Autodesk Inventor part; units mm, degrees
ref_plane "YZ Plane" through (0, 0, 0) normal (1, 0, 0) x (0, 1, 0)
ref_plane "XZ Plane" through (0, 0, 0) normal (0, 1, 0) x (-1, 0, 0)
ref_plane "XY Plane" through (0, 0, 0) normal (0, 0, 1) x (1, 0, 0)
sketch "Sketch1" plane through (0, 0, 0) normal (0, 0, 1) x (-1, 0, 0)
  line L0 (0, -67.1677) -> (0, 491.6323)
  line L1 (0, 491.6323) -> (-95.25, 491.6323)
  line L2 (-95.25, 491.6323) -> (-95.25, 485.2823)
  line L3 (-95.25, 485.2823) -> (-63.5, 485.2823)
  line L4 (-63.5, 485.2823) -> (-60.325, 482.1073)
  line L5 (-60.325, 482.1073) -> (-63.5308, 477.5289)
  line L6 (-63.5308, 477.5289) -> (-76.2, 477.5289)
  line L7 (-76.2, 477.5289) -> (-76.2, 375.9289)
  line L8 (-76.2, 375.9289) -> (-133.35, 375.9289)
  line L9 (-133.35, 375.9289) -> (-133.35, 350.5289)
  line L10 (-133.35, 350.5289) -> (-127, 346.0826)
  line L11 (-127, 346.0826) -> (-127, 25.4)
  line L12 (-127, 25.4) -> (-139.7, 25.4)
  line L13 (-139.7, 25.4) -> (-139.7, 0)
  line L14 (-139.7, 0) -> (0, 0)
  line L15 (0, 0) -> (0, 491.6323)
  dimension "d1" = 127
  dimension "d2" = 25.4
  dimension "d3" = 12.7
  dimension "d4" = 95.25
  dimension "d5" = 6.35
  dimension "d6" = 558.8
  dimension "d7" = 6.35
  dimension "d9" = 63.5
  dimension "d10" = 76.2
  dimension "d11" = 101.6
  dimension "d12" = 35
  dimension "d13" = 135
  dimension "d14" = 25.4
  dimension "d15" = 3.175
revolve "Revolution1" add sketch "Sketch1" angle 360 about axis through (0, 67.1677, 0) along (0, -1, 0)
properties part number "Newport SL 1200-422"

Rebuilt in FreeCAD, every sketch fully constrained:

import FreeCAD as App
import Part
import Sketcher
Q = App.Units.Quantity


def add_polygon(sketch, points):
    """Adds a closed chain of lines whose ends are joined by coincident constraints."""
    first, n = sketch.GeometryCount, len(points)
    for a, b in zip(points, points[1:] + points[:1]):
        sketch.addGeometry(Part.LineSegment(App.Vector(*a, 0), App.Vector(*b, 0)), False)
    for i in range(n):
        sketch.addConstraint(Sketcher.Constraint("Coincident", first + i, 2, first + (i + 1) % n, 1))

doc = App.newDocument("Part")
params = doc.addObject("Spreadsheet::Sheet", "Params")
for row, (alias, value) in enumerate([
    ("sketch1_height", "4 in"),
    ("sketch1_height2", "1 in"),
    ("sketch1_width", "0.5 in"),
    ("sketch1_width2", "3.75 in"),
    ("sketch1_height3", "0.25 in"),
    ("revolution_angle", "360 deg"),
], start=1):
    params.set(f"A{row}", alias)
    params.set(f"B{row}", "=" + value)
    params.setAlias(f"B{row}", alias)

body = doc.addObject("PartDesign::Body", "Body")

# Sketch on XY plane
sketch1 = body.newObject("Sketcher::SketchObject", "Sketch")
sketch1.AttachmentSupport = (doc.getObject("XY_Plane"), [""])
sketch1.MapMode = "FlatFace"
add_polygon(sketch1, [(139.7, 0), (0, 0), (0, -491.6323), (95.25, -491.6323), (95.25, -485.2823), (63.5, -485.2823), (60.325, -482.1073), (63.5308, -477.5289), (76.2, -477.5289), (76.2, -375.9289), (133.35, -375.9289), (133.35, -350.5289), (127, -346.0826), (127, -25.4), (139.7, -25.4)])  # lines 0-14
sketch1.addConstraint([
    Sketcher.Constraint("Horizontal", 0),
    Sketcher.Constraint("Vertical", 1),
    Sketcher.Constraint("Horizontal", 2),
    Sketcher.Constraint("Vertical", 3),
    Sketcher.Constraint("Horizontal", 4),
    Sketcher.Constraint("Horizontal", 7),
    Sketcher.Constraint("Vertical", 8),
    Sketcher.Constraint("Horizontal", 9),
    Sketcher.Constraint("Vertical", 10),
    Sketcher.Constraint("Vertical", 12),
    Sketcher.Constraint("Horizontal", 13),
    Sketcher.Constraint("Vertical", 14),
    Sketcher.Constraint("Coincident", 0, 2, -1, 1),
    Sketcher.Constraint("Perpendicular", 6, 11),
    Sketcher.Constraint("Equal", 10, 14),
    Sketcher.Constraint("DistanceY", 8, 1, 8, 2, Q("4 in")),
    Sketcher.Constraint("DistanceY", 10, 1, 10, 2, Q("1 in")),
    Sketcher.Constraint("DistanceX", 13, 1, 13, 2, Q("0.5 in")),
    Sketcher.Constraint("DistanceX", -1, 1, 7, 2, Q("3 in")),
    Sketcher.Constraint("DistanceX", -1, 1, 11, 2, Q("5 in")),
    Sketcher.Constraint("Angle", 5, Q("135 deg")),
    Sketcher.Constraint("DistanceX", 2, 1, 2, 2, Q("3.75 in")),
    Sketcher.Constraint("DistanceY", 3, 1, 3, 2, Q("0.25 in")),
    Sketcher.Constraint("DistanceX", -1, 1, 4, 2, Q("2.5 in")),
    Sketcher.Constraint("DistanceX", 11, 2, 10, 2, Q("0.25 in")),
    Sketcher.Constraint("Angle", 6, Q("55.0003 deg")),
    Sketcher.Constraint("DistanceX", 5, 2, 4, 2, Q("0.125 in")),
    Sketcher.Constraint("DistanceY", 1, 2, 1, 1, Q("19.3556 in")),
    Sketcher.Constraint("DistanceY", 12, 1, 12, 2, Q("12.6253 in")),
])
sketch1.setExpression("Constraints[30]", "Params.sketch1_height")
sketch1.setExpression("Constraints[31]", "Params.sketch1_height2")
sketch1.setExpression("Constraints[32]", "Params.sketch1_width")
sketch1.setExpression("Constraints[36]", "Params.sketch1_width2")
sketch1.setExpression("Constraints[37]", "Params.sketch1_height3")
revolution = body.newObject("PartDesign::Revolution", "Revolution")
revolution.Profile = sketch1
revolution.ReferenceAxis = (sketch1, ["V_Axis"])
revolution.setExpression("Angle", "Params.revolution_angle")

doc.recompute()
